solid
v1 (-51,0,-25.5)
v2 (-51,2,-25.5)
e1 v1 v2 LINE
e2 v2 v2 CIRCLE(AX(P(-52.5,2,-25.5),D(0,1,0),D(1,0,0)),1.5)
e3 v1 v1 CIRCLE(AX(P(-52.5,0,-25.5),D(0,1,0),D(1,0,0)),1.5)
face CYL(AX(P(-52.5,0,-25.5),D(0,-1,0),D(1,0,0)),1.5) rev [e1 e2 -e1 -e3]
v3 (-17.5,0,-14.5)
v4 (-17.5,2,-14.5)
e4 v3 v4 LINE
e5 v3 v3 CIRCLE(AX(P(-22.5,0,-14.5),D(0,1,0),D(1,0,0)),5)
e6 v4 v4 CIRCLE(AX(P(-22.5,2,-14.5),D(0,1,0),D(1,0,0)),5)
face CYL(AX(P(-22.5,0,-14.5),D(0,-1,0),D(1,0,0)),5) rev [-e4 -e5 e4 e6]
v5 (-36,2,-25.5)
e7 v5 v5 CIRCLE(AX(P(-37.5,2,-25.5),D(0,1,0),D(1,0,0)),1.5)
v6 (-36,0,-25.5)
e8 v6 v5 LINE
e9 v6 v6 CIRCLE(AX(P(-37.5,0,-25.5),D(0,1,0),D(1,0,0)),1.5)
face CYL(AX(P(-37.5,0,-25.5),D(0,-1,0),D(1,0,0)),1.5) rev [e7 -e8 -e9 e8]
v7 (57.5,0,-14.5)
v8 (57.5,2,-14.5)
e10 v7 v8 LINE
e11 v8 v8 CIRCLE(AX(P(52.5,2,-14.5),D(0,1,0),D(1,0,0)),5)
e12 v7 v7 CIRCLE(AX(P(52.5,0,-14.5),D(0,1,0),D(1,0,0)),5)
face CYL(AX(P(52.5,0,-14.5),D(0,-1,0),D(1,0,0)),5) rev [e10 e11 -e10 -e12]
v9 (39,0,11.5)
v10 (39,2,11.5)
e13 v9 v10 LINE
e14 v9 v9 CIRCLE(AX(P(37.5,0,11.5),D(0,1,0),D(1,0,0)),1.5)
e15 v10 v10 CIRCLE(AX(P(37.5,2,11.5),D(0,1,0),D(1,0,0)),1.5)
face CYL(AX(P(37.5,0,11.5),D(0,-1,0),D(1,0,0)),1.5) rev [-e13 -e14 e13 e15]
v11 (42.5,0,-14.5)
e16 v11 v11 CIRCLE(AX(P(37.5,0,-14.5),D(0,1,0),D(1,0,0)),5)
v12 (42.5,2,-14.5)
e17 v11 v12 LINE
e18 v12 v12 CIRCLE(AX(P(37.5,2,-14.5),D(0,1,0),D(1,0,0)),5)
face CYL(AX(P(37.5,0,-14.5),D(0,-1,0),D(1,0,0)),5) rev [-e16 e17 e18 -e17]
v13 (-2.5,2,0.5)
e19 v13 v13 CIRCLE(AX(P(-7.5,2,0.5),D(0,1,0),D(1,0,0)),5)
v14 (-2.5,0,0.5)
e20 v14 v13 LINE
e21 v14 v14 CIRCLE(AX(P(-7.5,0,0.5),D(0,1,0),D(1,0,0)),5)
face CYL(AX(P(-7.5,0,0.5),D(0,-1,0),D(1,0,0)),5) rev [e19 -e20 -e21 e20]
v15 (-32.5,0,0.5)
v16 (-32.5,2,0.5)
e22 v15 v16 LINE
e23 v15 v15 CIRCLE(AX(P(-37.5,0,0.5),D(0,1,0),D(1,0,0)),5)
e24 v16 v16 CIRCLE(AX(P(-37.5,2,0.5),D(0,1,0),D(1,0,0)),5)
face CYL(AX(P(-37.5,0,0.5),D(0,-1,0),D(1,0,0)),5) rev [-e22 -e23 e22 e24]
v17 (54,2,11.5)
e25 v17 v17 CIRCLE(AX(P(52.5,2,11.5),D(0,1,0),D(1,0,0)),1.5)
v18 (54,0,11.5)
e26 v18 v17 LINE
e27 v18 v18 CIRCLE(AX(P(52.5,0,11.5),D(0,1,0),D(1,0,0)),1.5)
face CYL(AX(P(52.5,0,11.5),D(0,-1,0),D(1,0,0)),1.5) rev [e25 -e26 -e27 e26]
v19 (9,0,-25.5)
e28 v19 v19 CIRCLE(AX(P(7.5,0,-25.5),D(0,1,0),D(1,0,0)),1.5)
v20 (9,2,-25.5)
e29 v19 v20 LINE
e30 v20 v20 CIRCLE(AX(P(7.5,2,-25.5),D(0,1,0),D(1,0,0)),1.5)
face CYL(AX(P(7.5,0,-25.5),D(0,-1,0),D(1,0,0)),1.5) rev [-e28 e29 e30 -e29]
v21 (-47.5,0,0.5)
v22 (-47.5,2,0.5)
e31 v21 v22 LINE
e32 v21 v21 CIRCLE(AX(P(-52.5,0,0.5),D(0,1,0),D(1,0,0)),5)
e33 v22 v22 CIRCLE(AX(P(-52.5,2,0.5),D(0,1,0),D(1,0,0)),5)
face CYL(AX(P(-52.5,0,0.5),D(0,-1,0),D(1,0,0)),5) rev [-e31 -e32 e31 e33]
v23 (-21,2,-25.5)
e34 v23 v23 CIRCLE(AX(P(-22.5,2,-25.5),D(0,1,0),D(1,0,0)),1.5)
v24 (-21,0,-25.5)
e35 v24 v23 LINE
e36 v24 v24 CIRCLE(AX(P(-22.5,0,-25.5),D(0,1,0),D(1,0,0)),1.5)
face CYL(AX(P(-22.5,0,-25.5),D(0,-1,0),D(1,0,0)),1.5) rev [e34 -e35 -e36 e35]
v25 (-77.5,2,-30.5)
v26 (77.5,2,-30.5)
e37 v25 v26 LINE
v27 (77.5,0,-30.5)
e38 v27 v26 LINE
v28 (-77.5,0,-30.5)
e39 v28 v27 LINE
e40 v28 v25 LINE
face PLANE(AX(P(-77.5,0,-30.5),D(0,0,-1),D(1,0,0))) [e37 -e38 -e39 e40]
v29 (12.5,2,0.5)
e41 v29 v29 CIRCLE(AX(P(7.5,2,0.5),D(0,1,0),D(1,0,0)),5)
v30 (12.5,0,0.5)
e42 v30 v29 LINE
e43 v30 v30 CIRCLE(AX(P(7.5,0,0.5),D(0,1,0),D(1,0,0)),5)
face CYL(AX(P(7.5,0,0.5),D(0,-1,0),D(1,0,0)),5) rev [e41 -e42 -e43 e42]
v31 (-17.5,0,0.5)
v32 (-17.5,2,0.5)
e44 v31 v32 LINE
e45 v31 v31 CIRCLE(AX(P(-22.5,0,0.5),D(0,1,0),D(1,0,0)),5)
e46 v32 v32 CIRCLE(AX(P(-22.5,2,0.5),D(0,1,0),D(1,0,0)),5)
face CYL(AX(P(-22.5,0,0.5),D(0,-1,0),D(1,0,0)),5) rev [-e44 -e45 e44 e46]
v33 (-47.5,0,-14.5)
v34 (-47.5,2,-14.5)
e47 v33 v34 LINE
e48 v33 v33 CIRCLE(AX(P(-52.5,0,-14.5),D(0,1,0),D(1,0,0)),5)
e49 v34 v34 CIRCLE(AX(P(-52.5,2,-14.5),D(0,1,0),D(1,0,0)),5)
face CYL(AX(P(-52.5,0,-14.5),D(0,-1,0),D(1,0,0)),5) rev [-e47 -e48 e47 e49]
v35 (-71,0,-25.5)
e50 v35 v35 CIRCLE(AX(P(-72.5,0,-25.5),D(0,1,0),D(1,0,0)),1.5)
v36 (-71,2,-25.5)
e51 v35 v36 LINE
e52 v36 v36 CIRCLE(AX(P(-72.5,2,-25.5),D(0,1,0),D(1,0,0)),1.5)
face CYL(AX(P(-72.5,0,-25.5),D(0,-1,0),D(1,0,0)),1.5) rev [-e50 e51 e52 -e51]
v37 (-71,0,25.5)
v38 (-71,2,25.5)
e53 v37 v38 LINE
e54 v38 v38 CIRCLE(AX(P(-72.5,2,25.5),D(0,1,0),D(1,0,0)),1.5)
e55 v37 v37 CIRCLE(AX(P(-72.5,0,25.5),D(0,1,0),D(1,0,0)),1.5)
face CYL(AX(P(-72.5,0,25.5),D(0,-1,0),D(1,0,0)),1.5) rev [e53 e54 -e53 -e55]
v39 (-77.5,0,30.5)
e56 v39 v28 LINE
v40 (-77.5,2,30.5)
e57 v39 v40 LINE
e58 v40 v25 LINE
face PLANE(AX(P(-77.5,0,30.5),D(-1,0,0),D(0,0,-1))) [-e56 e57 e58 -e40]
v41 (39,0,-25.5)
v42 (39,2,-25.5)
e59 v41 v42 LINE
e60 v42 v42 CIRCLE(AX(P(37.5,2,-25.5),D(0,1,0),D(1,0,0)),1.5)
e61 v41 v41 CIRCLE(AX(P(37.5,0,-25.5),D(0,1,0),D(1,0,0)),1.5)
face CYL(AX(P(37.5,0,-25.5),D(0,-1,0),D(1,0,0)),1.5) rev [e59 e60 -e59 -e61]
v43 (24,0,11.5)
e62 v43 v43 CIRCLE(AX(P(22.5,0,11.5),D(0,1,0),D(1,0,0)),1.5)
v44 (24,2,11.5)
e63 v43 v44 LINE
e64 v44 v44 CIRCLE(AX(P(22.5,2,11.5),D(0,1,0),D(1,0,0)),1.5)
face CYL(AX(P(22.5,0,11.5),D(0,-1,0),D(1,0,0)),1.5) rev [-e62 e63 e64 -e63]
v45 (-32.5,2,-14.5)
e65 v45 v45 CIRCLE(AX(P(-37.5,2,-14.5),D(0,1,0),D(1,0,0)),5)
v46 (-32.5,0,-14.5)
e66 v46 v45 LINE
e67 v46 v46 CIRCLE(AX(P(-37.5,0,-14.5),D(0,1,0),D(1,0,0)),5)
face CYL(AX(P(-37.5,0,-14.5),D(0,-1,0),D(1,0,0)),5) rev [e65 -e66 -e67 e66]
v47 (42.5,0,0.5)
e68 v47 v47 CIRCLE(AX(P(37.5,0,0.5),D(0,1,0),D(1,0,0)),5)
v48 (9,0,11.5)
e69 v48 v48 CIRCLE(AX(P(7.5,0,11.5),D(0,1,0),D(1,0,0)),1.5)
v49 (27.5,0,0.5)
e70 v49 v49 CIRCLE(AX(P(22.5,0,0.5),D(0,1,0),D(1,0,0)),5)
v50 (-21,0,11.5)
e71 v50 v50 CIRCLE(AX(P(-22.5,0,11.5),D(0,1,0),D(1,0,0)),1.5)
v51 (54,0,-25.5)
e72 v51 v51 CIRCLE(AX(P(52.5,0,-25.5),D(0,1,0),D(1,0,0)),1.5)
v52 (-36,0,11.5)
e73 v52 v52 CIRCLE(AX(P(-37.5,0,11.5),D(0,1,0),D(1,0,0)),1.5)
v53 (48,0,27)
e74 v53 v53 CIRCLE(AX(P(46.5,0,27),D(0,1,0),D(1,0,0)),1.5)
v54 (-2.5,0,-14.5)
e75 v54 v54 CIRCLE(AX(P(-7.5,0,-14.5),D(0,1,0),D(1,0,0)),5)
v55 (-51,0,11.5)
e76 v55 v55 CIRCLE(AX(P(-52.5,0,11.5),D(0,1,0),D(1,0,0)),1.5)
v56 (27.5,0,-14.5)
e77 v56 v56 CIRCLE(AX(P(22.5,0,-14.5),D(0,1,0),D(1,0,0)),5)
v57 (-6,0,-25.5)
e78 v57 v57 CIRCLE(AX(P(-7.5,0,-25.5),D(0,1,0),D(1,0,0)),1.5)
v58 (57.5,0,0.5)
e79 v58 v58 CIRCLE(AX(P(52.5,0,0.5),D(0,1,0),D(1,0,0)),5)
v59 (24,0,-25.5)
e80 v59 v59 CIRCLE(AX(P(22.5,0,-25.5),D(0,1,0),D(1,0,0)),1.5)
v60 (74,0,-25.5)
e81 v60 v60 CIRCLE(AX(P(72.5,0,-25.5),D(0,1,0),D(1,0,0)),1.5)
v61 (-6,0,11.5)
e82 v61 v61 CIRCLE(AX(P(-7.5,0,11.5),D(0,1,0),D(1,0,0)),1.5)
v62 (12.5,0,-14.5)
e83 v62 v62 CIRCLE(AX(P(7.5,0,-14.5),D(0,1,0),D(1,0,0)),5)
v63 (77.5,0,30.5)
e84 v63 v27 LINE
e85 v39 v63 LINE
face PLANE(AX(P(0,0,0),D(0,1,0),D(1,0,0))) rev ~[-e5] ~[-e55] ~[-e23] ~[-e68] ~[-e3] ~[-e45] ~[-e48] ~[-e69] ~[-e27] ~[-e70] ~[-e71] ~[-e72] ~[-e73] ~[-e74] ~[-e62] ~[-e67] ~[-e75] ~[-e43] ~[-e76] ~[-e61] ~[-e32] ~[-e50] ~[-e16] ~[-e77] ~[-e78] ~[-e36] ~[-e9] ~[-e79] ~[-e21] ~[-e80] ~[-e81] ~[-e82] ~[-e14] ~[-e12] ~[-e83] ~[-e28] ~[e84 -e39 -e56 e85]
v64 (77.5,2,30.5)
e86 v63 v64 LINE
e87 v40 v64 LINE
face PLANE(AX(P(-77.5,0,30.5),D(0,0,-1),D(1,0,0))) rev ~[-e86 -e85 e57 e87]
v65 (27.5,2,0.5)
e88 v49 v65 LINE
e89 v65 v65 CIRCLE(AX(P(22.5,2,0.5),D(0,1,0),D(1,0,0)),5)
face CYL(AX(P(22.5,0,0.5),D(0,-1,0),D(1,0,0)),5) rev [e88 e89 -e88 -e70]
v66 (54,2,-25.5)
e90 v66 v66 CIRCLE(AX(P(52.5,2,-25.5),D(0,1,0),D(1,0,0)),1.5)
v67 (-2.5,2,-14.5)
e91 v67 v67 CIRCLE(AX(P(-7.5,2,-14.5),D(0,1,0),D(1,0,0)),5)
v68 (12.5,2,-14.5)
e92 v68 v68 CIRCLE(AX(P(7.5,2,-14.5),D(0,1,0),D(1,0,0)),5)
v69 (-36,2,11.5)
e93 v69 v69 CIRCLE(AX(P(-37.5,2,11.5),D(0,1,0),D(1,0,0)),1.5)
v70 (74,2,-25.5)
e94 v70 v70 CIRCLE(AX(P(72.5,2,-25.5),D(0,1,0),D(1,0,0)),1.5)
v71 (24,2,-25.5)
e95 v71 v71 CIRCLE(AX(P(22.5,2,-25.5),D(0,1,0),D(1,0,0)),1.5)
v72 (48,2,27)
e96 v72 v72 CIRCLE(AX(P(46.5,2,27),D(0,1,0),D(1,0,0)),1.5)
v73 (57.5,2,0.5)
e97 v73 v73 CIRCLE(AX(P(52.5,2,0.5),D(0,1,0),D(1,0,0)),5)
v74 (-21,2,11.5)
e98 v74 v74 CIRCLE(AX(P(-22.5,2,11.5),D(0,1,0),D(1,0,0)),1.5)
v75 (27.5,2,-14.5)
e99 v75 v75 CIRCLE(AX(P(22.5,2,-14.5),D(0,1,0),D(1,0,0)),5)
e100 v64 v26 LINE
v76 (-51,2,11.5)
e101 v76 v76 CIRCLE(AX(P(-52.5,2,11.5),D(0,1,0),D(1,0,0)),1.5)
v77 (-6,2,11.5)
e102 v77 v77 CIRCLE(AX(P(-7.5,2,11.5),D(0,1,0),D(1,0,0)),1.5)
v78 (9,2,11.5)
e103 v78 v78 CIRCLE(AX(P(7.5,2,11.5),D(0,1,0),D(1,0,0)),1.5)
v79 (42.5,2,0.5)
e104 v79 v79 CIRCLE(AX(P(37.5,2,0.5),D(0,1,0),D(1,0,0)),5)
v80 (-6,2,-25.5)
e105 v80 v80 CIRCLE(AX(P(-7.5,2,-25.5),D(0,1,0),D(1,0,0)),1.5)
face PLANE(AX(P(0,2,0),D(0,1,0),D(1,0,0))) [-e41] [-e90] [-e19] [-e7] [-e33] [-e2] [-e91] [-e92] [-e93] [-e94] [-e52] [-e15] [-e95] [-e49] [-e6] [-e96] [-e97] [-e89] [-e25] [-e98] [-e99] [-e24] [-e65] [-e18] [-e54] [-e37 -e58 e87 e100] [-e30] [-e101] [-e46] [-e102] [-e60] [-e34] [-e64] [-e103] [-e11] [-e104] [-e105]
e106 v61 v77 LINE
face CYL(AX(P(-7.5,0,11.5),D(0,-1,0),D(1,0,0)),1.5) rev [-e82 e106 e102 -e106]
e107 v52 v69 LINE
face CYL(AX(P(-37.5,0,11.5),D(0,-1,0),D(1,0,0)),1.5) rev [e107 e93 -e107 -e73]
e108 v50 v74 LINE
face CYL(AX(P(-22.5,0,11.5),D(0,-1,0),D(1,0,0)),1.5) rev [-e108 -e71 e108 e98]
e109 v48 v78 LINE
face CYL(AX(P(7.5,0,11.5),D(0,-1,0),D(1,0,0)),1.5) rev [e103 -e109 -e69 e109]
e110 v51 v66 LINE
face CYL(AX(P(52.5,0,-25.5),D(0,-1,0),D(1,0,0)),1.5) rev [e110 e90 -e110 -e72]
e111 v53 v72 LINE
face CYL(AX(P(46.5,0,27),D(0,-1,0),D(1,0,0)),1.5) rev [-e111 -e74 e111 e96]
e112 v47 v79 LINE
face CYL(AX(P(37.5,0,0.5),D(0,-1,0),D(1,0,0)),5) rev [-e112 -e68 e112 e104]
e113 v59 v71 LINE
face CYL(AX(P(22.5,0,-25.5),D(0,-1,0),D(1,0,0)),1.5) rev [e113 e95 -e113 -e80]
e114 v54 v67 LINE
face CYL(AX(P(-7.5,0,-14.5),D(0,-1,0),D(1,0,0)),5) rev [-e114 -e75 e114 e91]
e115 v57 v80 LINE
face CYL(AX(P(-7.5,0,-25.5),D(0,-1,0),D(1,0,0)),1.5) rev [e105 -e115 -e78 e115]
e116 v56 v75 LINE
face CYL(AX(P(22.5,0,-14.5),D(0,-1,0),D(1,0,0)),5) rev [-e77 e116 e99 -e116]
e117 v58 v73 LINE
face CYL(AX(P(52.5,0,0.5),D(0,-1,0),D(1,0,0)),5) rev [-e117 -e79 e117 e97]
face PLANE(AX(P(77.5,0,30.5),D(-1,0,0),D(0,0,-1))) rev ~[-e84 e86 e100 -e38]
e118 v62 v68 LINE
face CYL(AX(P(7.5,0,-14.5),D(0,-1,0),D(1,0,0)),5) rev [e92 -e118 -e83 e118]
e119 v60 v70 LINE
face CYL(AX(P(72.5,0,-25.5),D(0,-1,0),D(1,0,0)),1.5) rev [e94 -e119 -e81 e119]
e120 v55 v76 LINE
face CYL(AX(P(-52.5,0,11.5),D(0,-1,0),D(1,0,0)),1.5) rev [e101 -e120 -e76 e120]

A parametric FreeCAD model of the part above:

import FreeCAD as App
import Part
import Sketcher
from FreeCAD import Vector

doc = App.newDocument("Part")
body = doc.addObject("PartDesign::Body", "Body")

# Sketch on XZ plane
sketch1 = body.newObject("Sketcher::SketchObject", "Sketch")
sketch1.AttachmentSupport = (doc.getObject("XZ_Plane"), [""])
sketch1.MapMode = "FlatFace"
sketch1.addGeometry(Part.LineSegment(Vector(-77.5, -30.5, 0), Vector(-77.5, 30.5, 0)), False)
sketch1.addGeometry(Part.LineSegment(Vector(-77.5, 30.5, 0), Vector(77.5, 30.5, 0)), False)
sketch1.addGeometry(Part.LineSegment(Vector(77.5, 30.5, 0), Vector(77.5, -30.5, 0)), False)
sketch1.addGeometry(Part.LineSegment(Vector(77.5, -30.5, 0), Vector(-77.5, -30.5, 0)), False)
sketch1.addGeometry(Part.Circle(Vector(-72.5, 25.5, 0), Vector(0, 0, 1), 1.5), False)
sketch1.addGeometry(Part.Circle(Vector(-52.5, 11.5, 0), Vector(0, 0, 1), 1.5), False)
sketch1.addGeometry(Part.Circle(Vector(-37.5, 11.5, 0), Vector(0, 0, 1), 1.5), False)
sketch1.addGeometry(Part.Circle(Vector(-22.5, 11.5, 0), Vector(0, 0, 1), 1.5), False)
sketch1.addGeometry(Part.Circle(Vector(-7.5, 11.5, 0), Vector(0, 0, 1), 1.5), False)
sketch1.addGeometry(Part.Circle(Vector(46.5, 27, 0), Vector(0, 0, 1), 1.5), False)
sketch1.addGeometry(Part.Circle(Vector(7.5, 11.5, 0), Vector(0, 0, 1), 1.5), False)
sketch1.addGeometry(Part.Circle(Vector(22.5, 11.5, 0), Vector(0, 0, 1), 1.5), False)
sketch1.addGeometry(Part.Circle(Vector(37.5, 11.5, 0), Vector(0, 0, 1), 1.5), False)
sketch1.addGeometry(Part.Circle(Vector(52.5, 11.5, 0), Vector(0, 0, 1), 1.5), False)
sketch1.addGeometry(Part.Circle(Vector(-52.5, 0.5, 0), Vector(0, 0, 1), 5), False)
sketch1.addGeometry(Part.Circle(Vector(-37.5, 0.5, 0), Vector(0, 0, 1), 5), False)
sketch1.addGeometry(Part.Circle(Vector(-22.5, 0.5, 0), Vector(0, 0, 1), 5), False)
sketch1.addGeometry(Part.Circle(Vector(-7.5, 0.5, 0), Vector(0, 0, 1), 5), False)
sketch1.addGeometry(Part.Circle(Vector(-52.5, -14.5, 0), Vector(0, 0, 1), 5), False)
sketch1.addGeometry(Part.Circle(Vector(-37.5, -14.5, 0), Vector(0, 0, 1), 5), False)
sketch1.addGeometry(Part.Circle(Vector(-72.5, -25.5, 0), Vector(0, 0, 1), 1.5), False)
sketch1.addGeometry(Part.Circle(Vector(-52.5, -25.5, 0), Vector(0, 0, 1), 1.5), False)
sketch1.addGeometry(Part.Circle(Vector(-37.5, -25.5, 0), Vector(0, 0, 1), 1.5), False)
sketch1.addGeometry(Part.Circle(Vector(-22.5, -14.5, 0), Vector(0, 0, 1), 5), False)
sketch1.addGeometry(Part.Circle(Vector(-7.5, -14.5, 0), Vector(0, 0, 1), 5), False)
sketch1.addGeometry(Part.Circle(Vector(-22.5, -25.5, 0), Vector(0, 0, 1), 1.5), False)
sketch1.addGeometry(Part.Circle(Vector(-7.5, -25.5, 0), Vector(0, 0, 1), 1.5), False)
sketch1.addGeometry(Part.Circle(Vector(7.5, 0.5, 0), Vector(0, 0, 1), 5), False)
sketch1.addGeometry(Part.Circle(Vector(22.5, 0.5, 0), Vector(0, 0, 1), 5), False)
sketch1.addGeometry(Part.Circle(Vector(37.5, 0.5, 0), Vector(0, 0, 1), 5), False)
sketch1.addGeometry(Part.Circle(Vector(52.5, 0.5, 0), Vector(0, 0, 1), 5), False)
sketch1.addGeometry(Part.Circle(Vector(7.5, -14.5, 0), Vector(0, 0, 1), 5), False)
sketch1.addGeometry(Part.Circle(Vector(22.5, -14.5, 0), Vector(0, 0, 1), 5), False)
sketch1.addGeometry(Part.Circle(Vector(7.5, -25.5, 0), Vector(0, 0, 1), 1.5), False)
sketch1.addGeometry(Part.Circle(Vector(22.5, -25.5, 0), Vector(0, 0, 1), 1.5), False)
sketch1.addGeometry(Part.Circle(Vector(37.5, -14.5, 0), Vector(0, 0, 1), 5), False)
sketch1.addGeometry(Part.Circle(Vector(52.5, -14.5, 0), Vector(0, 0, 1), 5), False)
sketch1.addGeometry(Part.Circle(Vector(37.5, -25.5, 0), Vector(0, 0, 1), 1.5), False)
sketch1.addGeometry(Part.Circle(Vector(52.5, -25.5, 0), Vector(0, 0, 1), 1.5), False)
sketch1.addGeometry(Part.Circle(Vector(72.5, -25.5, 0), Vector(0, 0, 1), 1.5), False)
sketch1.addConstraint(Sketcher.Constraint("Coincident", 0, 2, 1, 1))
sketch1.addConstraint(Sketcher.Constraint("Coincident", 1, 2, 2, 1))
sketch1.addConstraint(Sketcher.Constraint("Coincident", 2, 2, 3, 1))
sketch1.addConstraint(Sketcher.Constraint("Coincident", 3, 2, 0, 1))
sketch1.addConstraint(Sketcher.Constraint("Vertical", 0))
sketch1.addConstraint(Sketcher.Constraint("Horizontal", 1))
sketch1.addConstraint(Sketcher.Constraint("Vertical", 2))
sketch1.addConstraint(Sketcher.Constraint("Horizontal", 3))
sketch1.addConstraint(Sketcher.Constraint("Equal", 4, 5))
sketch1.addConstraint(Sketcher.Constraint("Equal", 5, 6))
sketch1.addConstraint(Sketcher.Constraint("Equal", 6, 7))
sketch1.addConstraint(Sketcher.Constraint("Equal", 7, 8))
sketch1.addConstraint(Sketcher.Constraint("Equal", 8, 9))
sketch1.addConstraint(Sketcher.Constraint("Equal", 9, 10))
sketch1.addConstraint(Sketcher.Constraint("Equal", 10, 11))
sketch1.addConstraint(Sketcher.Constraint("Equal", 11, 12))
sketch1.addConstraint(Sketcher.Constraint("Equal", 12, 13))
sketch1.addConstraint(Sketcher.Constraint("Equal", 14, 15))
sketch1.addConstraint(Sketcher.Constraint("Equal", 15, 16))
sketch1.addConstraint(Sketcher.Constraint("Equal", 16, 17))
sketch1.addConstraint(Sketcher.Constraint("Equal", 17, 18))
sketch1.addConstraint(Sketcher.Constraint("Equal", 18, 19))
sketch1.addConstraint(Sketcher.Constraint("Equal", 13, 20))
sketch1.addConstraint(Sketcher.Constraint("Equal", 20, 21))
sketch1.addConstraint(Sketcher.Constraint("Equal", 21, 22))
sketch1.addConstraint(Sketcher.Constraint("Equal", 19, 23))
sketch1.addConstraint(Sketcher.Constraint("Equal", 23, 24))
sketch1.addConstraint(Sketcher.Constraint("Equal", 22, 25))
sketch1.addConstraint(Sketcher.Constraint("Equal", 25, 26))
sketch1.addConstraint(Sketcher.Constraint("Equal", 24, 27))
sketch1.addConstraint(Sketcher.Constraint("Equal", 27, 28))
sketch1.addConstraint(Sketcher.Constraint("Equal", 28, 29))
sketch1.addConstraint(Sketcher.Constraint("Equal", 29, 30))
sketch1.addConstraint(Sketcher.Constraint("Equal", 30, 31))
sketch1.addConstraint(Sketcher.Constraint("Equal", 31, 32))
sketch1.addConstraint(Sketcher.Constraint("Equal", 26, 33))
sketch1.addConstraint(Sketcher.Constraint("Equal", 33, 34))
sketch1.addConstraint(Sketcher.Constraint("Equal", 32, 35))
sketch1.addConstraint(Sketcher.Constraint("Equal", 35, 36))
sketch1.addConstraint(Sketcher.Constraint("Equal", 34, 37))
sketch1.addConstraint(Sketcher.Constraint("Equal", 37, 38))
sketch1.addConstraint(Sketcher.Constraint("Equal", 38, 39))
sketch1.addConstraint(Sketcher.Constraint("Symmetric", 4, 3, 39, 3, -1, 1))
sketch1.addConstraint(Sketcher.Constraint("Symmetric", 0, 2, 2, 2, -1, 1))
sketch1.addConstraint(Sketcher.Constraint("Symmetric", 8, 3, 10, 3, -2))
sketch1.addConstraint(Sketcher.Constraint("Symmetric", 7, 3, 11, 3, -2))
sketch1.addConstraint(Sketcher.Constraint("Symmetric", 6, 3, 12, 3, -2))
sketch1.addConstraint(Sketcher.Constraint("Symmetric", 5, 3, 13, 3, -2))
sketch1.addConstraint(Sketcher.Constraint("Symmetric", 17, 3, 27, 3, -2))
sketch1.addConstraint(Sketcher.Constraint("Symmetric", 16, 3, 28, 3, -2))
sketch1.addConstraint(Sketcher.Constraint("Symmetric", 15, 3, 29, 3, -2))
sketch1.addConstraint(Sketcher.Constraint("Symmetric", 14, 3, 30, 3, -2))
sketch1.addConstraint(Sketcher.Constraint("Symmetric", 24, 3, 31, 3, -2))
sketch1.addConstraint(Sketcher.Constraint("Symmetric", 23, 3, 32, 3, -2))
sketch1.addConstraint(Sketcher.Constraint("Symmetric", 26, 3, 33, 3, -2))
sketch1.addConstraint(Sketcher.Constraint("Symmetric", 25, 3, 34, 3, -2))
sketch1.addConstraint(Sketcher.Constraint("Symmetric", 19, 3, 35, 3, -2))
sketch1.addConstraint(Sketcher.Constraint("Symmetric", 18, 3, 36, 3, -2))
sketch1.addConstraint(Sketcher.Constraint("Symmetric", 22, 3, 37, 3, -2))
sketch1.addConstraint(Sketcher.Constraint("Symmetric", 21, 3, 38, 3, -2))
sketch1.addConstraint(Sketcher.Constraint("Symmetric", 20, 3, 39, 3, -2))
sketch1.addConstraint(Sketcher.Constraint("Horizontal", 5, 3, 6, 3))
sketch1.addConstraint(Sketcher.Constraint("Horizontal", 6, 3, 7, 3))
sketch1.addConstraint(Sketcher.Constraint("Horizontal", 7, 3, 8, 3))
sketch1.addConstraint(Sketcher.Constraint("Horizontal", 14, 3, 15, 3))
sketch1.addConstraint(Sketcher.Constraint("Horizontal", 15, 3, 16, 3))
sketch1.addConstraint(Sketcher.Constraint("Horizontal", 16, 3, 17, 3))
sketch1.addConstraint(Sketcher.Constraint("Horizontal", 18, 3, 19, 3))
sketch1.addConstraint(Sketcher.Constraint("Horizontal", 20, 3, 21, 3))
sketch1.addConstraint(Sketcher.Constraint("Horizontal", 21, 3, 22, 3))
sketch1.addConstraint(Sketcher.Constraint("Horizontal", 19, 3, 23, 3))
sketch1.addConstraint(Sketcher.Constraint("Horizontal", 23, 3, 24, 3))
sketch1.addConstraint(Sketcher.Constraint("Horizontal", 22, 3, 25, 3))
sketch1.addConstraint(Sketcher.Constraint("Horizontal", 25, 3, 26, 3))
sketch1.addConstraint(Sketcher.Constraint("Vertical", 5, 3, 14, 3))
sketch1.addConstraint(Sketcher.Constraint("Vertical", 6, 3, 15, 3))
sketch1.addConstraint(Sketcher.Constraint("Vertical", 7, 3, 16, 3))
sketch1.addConstraint(Sketcher.Constraint("Vertical", 8, 3, 17, 3))
sketch1.addConstraint(Sketcher.Constraint("Vertical", 14, 3, 18, 3))
sketch1.addConstraint(Sketcher.Constraint("Vertical", 15, 3, 19, 3))
sketch1.addConstraint(Sketcher.Constraint("Vertical", 18, 3, 21, 3))
sketch1.addConstraint(Sketcher.Constraint("Vertical", 19, 3, 22, 3))
sketch1.addConstraint(Sketcher.Constraint("Vertical", 16, 3, 23, 3))
sketch1.addConstraint(Sketcher.Constraint("Vertical", 17, 3, 24, 3))
sketch1.addConstraint(Sketcher.Constraint("Vertical", 23, 3, 25, 3))
sketch1.addConstraint(Sketcher.Constraint("Vertical", 24, 3, 26, 3))
sketch1.addConstraint(Sketcher.Constraint("Diameter", 4, 3.0))
sketch1.addConstraint(Sketcher.Constraint("Diameter", 14, 10.0))
sketch1.addConstraint(Sketcher.Constraint("DistanceX", 1, 1, 1, 2, 155.0))
sketch1.addConstraint(Sketcher.Constraint("DistanceY", 0, 1, 0, 2, 61.0))
sketch1.addConstraint(Sketcher.Constraint("DistanceY", -1, 1, 9, 3, 27.0))
sketch1.addConstraint(Sketcher.Constraint("DistanceX", 4, 3, 5, 3, 20.0))
sketch1.addConstraint(Sketcher.Constraint("DistanceY", 5, 3, 4, 3, 14.0))
sketch1.addConstraint(Sketcher.Constraint("DistanceX", 5, 3, 6, 3, 15.0))
sketch1.addConstraint(Sketcher.Constraint("DistanceX", 6, 3, 7, 3, 15.0))
sketch1.addConstraint(Sketcher.Constraint("DistanceX", 7, 3, 8, 3, 15.0))
sketch1.addConstraint(Sketcher.Constraint("DistanceX", 8, 3, 9, 3, 54.0))
sketch1.addConstraint(Sketcher.Constraint("DistanceX", 8, 3, 10, 3, 15.0))
sketch1.addConstraint(Sketcher.Constraint("DistanceY", 14, 3, 5, 3, 11.0))
sketch1.addConstraint(Sketcher.Constraint("DistanceY", 18, 3, 14, 3, 15.0))
sketch1.addConstraint(Sketcher.Constraint("DistanceY", 20, 3, 18, 3, 11.0))
pad1 = body.newObject("PartDesign::Pad", "Pad")
pad1.Profile = sketch1
pad1.Length = 2
pad1.Reversed = True

doc.recompute()
